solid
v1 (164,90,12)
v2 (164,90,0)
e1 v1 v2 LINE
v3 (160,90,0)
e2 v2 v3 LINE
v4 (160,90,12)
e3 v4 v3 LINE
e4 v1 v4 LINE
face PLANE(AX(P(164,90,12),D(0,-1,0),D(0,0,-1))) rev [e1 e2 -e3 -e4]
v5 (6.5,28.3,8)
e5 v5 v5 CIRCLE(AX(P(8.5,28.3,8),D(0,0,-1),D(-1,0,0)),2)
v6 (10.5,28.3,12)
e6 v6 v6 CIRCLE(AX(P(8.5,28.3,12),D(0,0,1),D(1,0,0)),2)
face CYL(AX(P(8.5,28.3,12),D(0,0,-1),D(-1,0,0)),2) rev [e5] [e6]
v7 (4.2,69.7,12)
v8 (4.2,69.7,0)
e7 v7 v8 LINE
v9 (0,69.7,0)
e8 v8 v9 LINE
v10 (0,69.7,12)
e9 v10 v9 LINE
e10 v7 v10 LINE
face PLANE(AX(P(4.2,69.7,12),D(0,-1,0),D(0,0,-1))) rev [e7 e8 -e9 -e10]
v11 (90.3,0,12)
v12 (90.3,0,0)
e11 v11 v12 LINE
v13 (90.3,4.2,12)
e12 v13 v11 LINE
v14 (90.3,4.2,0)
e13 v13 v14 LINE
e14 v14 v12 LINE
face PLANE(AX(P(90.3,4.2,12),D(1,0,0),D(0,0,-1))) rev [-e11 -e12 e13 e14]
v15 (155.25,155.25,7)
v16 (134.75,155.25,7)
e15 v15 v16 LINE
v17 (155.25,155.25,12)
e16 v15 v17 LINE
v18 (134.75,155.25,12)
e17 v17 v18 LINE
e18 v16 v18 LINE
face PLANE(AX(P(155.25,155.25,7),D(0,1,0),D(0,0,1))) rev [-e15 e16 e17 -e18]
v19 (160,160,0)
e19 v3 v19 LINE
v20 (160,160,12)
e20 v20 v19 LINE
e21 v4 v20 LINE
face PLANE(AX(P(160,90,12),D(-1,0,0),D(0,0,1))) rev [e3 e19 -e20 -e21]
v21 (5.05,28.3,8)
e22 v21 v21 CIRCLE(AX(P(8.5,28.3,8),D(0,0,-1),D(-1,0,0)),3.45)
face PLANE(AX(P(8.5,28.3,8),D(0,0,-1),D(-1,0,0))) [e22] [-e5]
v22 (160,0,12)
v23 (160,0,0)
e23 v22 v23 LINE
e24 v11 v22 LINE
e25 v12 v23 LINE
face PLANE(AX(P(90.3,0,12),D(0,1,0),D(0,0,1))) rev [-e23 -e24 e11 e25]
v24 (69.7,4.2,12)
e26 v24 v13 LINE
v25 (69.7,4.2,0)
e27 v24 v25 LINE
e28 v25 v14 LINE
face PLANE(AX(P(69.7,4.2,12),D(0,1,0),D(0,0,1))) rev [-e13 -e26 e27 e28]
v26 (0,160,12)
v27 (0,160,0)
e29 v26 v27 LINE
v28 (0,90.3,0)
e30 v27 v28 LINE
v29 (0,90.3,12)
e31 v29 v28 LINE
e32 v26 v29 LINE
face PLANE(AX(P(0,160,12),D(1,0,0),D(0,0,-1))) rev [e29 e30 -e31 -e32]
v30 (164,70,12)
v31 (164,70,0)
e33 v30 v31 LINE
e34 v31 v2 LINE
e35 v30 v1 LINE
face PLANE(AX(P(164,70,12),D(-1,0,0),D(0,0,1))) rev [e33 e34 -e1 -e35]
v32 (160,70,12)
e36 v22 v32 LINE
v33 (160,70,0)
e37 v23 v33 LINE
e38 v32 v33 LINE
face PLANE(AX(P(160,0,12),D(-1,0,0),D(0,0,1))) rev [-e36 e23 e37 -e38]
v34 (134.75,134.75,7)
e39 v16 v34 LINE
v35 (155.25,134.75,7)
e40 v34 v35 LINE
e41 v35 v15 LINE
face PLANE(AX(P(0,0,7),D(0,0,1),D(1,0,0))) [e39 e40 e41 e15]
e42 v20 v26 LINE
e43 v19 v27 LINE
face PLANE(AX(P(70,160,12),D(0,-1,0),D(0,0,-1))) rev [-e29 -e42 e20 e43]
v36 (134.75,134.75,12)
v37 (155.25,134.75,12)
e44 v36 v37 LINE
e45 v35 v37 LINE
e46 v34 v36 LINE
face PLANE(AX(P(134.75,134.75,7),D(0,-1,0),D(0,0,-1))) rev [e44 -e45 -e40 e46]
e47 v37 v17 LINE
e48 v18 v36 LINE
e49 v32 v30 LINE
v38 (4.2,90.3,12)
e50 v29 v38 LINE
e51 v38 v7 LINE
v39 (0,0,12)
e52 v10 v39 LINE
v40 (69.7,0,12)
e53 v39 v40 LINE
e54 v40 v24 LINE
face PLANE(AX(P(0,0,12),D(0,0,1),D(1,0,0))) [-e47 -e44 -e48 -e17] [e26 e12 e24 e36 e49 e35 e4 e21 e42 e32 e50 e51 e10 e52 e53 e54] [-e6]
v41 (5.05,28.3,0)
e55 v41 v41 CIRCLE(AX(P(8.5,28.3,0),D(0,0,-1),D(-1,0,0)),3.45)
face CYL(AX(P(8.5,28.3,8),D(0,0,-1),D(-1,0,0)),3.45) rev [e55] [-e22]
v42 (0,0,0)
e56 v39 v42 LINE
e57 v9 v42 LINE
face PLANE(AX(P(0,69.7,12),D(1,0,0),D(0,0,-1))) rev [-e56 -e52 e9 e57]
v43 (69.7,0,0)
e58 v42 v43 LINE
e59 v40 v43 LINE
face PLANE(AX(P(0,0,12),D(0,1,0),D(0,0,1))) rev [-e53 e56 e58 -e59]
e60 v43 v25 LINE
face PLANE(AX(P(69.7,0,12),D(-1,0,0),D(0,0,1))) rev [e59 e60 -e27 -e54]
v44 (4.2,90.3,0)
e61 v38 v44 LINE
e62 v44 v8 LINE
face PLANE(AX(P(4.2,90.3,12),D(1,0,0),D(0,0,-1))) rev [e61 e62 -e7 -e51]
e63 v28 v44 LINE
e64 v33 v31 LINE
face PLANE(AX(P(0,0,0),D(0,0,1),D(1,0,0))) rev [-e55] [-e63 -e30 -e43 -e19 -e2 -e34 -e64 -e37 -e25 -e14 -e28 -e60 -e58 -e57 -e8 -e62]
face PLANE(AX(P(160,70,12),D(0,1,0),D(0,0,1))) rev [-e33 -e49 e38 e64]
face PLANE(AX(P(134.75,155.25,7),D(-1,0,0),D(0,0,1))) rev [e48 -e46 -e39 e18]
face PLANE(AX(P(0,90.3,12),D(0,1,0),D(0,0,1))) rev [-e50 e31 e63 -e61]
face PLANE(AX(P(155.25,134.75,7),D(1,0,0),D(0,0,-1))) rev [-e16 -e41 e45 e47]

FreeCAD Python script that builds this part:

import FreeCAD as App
import Part
import Sketcher
from FreeCAD import Vector
Q = App.Units.Quantity


def add_polygon(sketch, points):
    """Adds a closed chain of lines whose ends are joined by coincident constraints."""
    first, n = sketch.GeometryCount, len(points)
    for a, b in zip(points, points[1:] + points[:1]):
        sketch.addGeometry(Part.LineSegment(App.Vector(*a, 0), App.Vector(*b, 0)), False)
    for i in range(n):
        sketch.addConstraint(Sketcher.Constraint("Coincident", first + i, 2, first + (i + 1) % n, 1))

doc = App.newDocument("Part")
params = doc.addObject("Spreadsheet::Sheet", "Params")
for row, (alias, value) in enumerate([
    ("sketch1_diameter", "4 mm"),
    ("sketch1_width", "4 mm"),
    ("sketch1_width2", "160 mm"),
    ("sketch1_height", "70 mm"),
    ("sketch1_width3", "69.7 mm"),
    ("pad1_length", "12 mm"),
    ("sketch2_width", "20.5 mm"),
    ("pocket1_length", "5 mm"),
    ("sketch3_diameter", "6.9 mm"),
    ("pocket2_length", "8 mm"),
], start=1):
    params.set(f"A{row}", alias)
    params.set(f"B{row}", "=" + value)
    params.setAlias(f"B{row}", alias)

body = doc.addObject("PartDesign::Body", "Body")

# Sketch on XY plane
sketch1 = body.newObject("Sketcher::SketchObject", "Sketch")
sketch1.AttachmentSupport = (doc.getObject("XY_Plane"), [""])
sketch1.MapMode = "FlatFace"
add_polygon(sketch1, [(0, 0), (69.7, 0), (69.7, 4.2), (90.3, 4.2), (90.3, 0), (160, 0), (160, 70), (164, 70), (164, 90), (160, 90), (160, 160), (0, 160), (0, 90.3), (4.2, 90.3), (4.2, 69.7), (0, 69.7)])  # lines 0-15
sketch1.addGeometry(Part.Circle(Vector(8.5, 28.3, 0), Vector(0, 0, 1), 2), False)  # 16
sketch1.addConstraint([
    Sketcher.Constraint("Horizontal", 0),
    Sketcher.Constraint("Vertical", 1),
    Sketcher.Constraint("Horizontal", 2),
    Sketcher.Constraint("Vertical", 3),
    Sketcher.Constraint("Horizontal", 4),
    Sketcher.Constraint("Vertical", 5),
    Sketcher.Constraint("Horizontal", 6),
    Sketcher.Constraint("Vertical", 7),
    Sketcher.Constraint("Horizontal", 8),
    Sketcher.Constraint("Vertical", 9),
    Sketcher.Constraint("Horizontal", 10),
    Sketcher.Constraint("Vertical", 11),
    Sketcher.Constraint("Horizontal", 12),
    Sketcher.Constraint("Vertical", 13),
    Sketcher.Constraint("Horizontal", 14),
    Sketcher.Constraint("Vertical", 15),
    Sketcher.Constraint("Coincident", 15, 2, -1, 1),
    Sketcher.Constraint("PointOnObject", 3, 2, -1),
    Sketcher.Constraint("PointOnObject", 10, 2, -2),
    Sketcher.Constraint("Vertical", 5, 2, 8, 2),
    Sketcher.Constraint("Equal", 0, 4),
    Sketcher.Constraint("Equal", 14, 1),
    Sketcher.Constraint("Equal", 5, 9),
    Sketcher.Constraint("Equal", 4, 11),
    Sketcher.Constraint("Equal", 2, 13),
    Sketcher.Constraint("Equal", 11, 15),
    Sketcher.Constraint("Diameter", 16, Q("4 mm")),
    Sketcher.Constraint("DistanceX", 6, 1, 6, 2, Q("4 mm")),
    Sketcher.Constraint("DistanceX", 10, 2, 10, 1, Q("160 mm")),
    Sketcher.Constraint("DistanceY", 5, 1, 5, 2, Q("70 mm")),
    Sketcher.Constraint("DistanceX", 0, 1, 0, 2, Q("69.7 mm")),
    Sketcher.Constraint("DistanceX", 12, 1, 12, 2, Q("4.2 mm")),
    Sketcher.Constraint("DistanceY", 16, 3, 11, 2, Q("62 mm")),
    Sketcher.Constraint("DistanceX", -1, 1, 16, 3, Q("8.5 mm")),
])
sketch1.setExpression("Constraints[42]", "Params.sketch1_diameter")
sketch1.setExpression("Constraints[43]", "Params.sketch1_width")
sketch1.setExpression("Constraints[44]", "Params.sketch1_width2")
sketch1.setExpression("Constraints[45]", "Params.sketch1_height")
sketch1.setExpression("Constraints[46]", "Params.sketch1_width3")
pad1 = body.newObject("PartDesign::Pad", "Pad")
pad1.Profile = sketch1
pad1.setExpression("Length", "Params.pad1_length")

# Sketch on XY plane
sketch2 = body.newObject("Sketcher::SketchObject", "Sketch001")
sketch2.AttachmentSupport = (doc.getObject("XY_Plane"), [""])
sketch2.MapMode = "FlatFace"
sketch2.AttachmentOffset = App.Placement(Vector(0, 0, 12), App.Rotation())
add_polygon(sketch2, [(134.75, 155.25), (134.75, 134.75), (155.25, 134.75), (155.25, 155.25)])  # lines 0-3
sketch2.addConstraint([
    Sketcher.Constraint("Vertical", 0),
    Sketcher.Constraint("Horizontal", 1),
    Sketcher.Constraint("Vertical", 2),
    Sketcher.Constraint("Horizontal", 3),
    Sketcher.Constraint("Equal", 3, 0),
    Sketcher.Constraint("DistanceX", 1, 1, 1, 2, Q("20.5 mm")),
    Sketcher.Constraint("DistanceX", -1, 1, 0, 2, Q("134.75 mm")),
    Sketcher.Constraint("DistanceY", -1, 1, 0, 2, Q("134.75 mm")),
])
sketch2.setExpression("Constraints[9]", "Params.sketch2_width")
pocket1 = body.newObject("PartDesign::Pocket", "Pocket")
pocket1.Profile = sketch2
pocket1.setExpression("Length", "Params.pocket1_length")

# Sketch on XY plane
sketch3 = body.newObject("Sketcher::SketchObject", "Sketch002")
sketch3.AttachmentSupport = (doc.getObject("XY_Plane"), [""])
sketch3.MapMode = "FlatFace"
sketch3.addGeometry(Part.Circle(Vector(8.5, 28.3, 0), Vector(0, 0, 1), 3.45), False)
sketch3.addConstraint([
    Sketcher.Constraint("Diameter", 0, Q("6.9 mm")),
    Sketcher.Constraint("DistanceX", -1, 1, 0, 3, Q("8.5 mm")),
    Sketcher.Constraint("DistanceY", -1, 1, 0, 3, Q("28.3 mm")),
])
sketch3.setExpression("Constraints[0]", "Params.sketch3_diameter")
pocket2 = body.newObject("PartDesign::Pocket", "Pocket001")
pocket2.Profile = sketch3
pocket2.setExpression("Length", "Params.pocket2_length")
pocket2.Reversed = True

doc.recompute()
